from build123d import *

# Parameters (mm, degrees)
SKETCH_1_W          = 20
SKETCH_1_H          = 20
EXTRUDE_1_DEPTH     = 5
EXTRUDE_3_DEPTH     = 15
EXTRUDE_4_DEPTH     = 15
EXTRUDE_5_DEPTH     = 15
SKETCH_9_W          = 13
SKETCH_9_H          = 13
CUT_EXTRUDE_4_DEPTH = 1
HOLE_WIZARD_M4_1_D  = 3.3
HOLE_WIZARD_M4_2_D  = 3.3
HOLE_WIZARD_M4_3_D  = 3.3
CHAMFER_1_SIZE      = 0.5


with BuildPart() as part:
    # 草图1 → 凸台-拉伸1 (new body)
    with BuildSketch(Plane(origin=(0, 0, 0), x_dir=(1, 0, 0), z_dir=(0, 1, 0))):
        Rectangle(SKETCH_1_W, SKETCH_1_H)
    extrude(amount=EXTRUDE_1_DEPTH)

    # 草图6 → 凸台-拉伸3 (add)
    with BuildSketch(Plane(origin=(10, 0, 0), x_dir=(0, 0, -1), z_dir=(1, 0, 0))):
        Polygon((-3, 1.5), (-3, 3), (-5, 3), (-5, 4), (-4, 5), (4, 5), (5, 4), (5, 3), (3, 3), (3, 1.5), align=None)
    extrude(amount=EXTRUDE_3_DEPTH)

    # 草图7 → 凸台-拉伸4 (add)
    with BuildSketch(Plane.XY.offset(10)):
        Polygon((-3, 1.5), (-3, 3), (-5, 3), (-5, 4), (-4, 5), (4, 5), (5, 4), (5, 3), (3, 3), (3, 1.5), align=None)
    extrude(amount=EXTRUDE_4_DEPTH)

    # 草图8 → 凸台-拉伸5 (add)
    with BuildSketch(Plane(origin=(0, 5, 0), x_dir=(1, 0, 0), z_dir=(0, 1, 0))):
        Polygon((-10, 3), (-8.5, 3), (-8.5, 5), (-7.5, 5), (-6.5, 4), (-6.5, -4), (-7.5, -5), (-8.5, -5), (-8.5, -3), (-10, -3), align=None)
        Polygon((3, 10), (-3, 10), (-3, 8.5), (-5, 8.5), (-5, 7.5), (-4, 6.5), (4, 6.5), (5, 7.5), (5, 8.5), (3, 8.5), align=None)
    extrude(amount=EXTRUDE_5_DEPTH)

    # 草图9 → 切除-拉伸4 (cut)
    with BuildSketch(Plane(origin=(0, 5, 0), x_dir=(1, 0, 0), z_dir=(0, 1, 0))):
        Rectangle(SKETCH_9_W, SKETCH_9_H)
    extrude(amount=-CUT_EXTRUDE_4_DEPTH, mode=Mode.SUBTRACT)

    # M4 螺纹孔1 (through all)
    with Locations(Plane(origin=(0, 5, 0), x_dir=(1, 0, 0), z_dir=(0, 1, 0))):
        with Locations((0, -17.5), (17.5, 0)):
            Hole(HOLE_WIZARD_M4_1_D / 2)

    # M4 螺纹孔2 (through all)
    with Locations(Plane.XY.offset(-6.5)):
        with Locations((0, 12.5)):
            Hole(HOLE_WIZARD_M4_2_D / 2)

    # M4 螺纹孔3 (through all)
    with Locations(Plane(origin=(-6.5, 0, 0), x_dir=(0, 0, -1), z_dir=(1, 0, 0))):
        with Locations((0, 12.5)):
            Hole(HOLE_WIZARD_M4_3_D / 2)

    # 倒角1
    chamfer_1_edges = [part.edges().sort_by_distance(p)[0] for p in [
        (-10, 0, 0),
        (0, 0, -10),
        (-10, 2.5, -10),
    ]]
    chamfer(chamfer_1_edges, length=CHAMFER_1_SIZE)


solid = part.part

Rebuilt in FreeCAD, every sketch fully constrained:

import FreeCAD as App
import Part
import Sketcher


def edges_at(feature, points):
    """Names of the edges that pass closest to the given points."""
    edges = feature.Shape.Edges
    near = lambda p: min(range(len(edges)), key=lambda i: edges[i].distToShape(Part.Vertex(*p))[0])
    return sorted({f"Edge{near(p) + 1}" for p in points})

doc = App.newDocument("Part")
body = doc.addObject("PartDesign::Body", "Body")

sketch1 = doc.addObject("Sketcher::SketchObject", "Sketch")
body.addObject(sketch1)
sketch1.AttachmentSupport = (doc.XZ_Plane, [""])
sketch1.MapMode = "FlatFace"
sketch1.addGeometry([
    Part.LineSegment(App.Vector(-10, -10, 0), App.Vector(-10, 10, 0)),
    Part.LineSegment(App.Vector(-10, 10, 0), App.Vector(10, 10, 0)),
    Part.LineSegment(App.Vector(10, 10, 0), App.Vector(10, -10, 0)),
    Part.LineSegment(App.Vector(10, -10, 0), App.Vector(-10, -10, 0)),
], False)
sketch1.addConstraint([
    Sketcher.Constraint("Coincident", 0, 2, 1, 1),
    Sketcher.Constraint("Coincident", 1, 2, 2, 1),
    Sketcher.Constraint("Coincident", 2, 2, 3, 1),
    Sketcher.Constraint("Coincident", 3, 2, 0, 1),
    Sketcher.Constraint("Vertical", 0),
    Sketcher.Constraint("Horizontal", 1),
    Sketcher.Constraint("Vertical", 2),
    Sketcher.Constraint("Horizontal", 3),
    Sketcher.Constraint("Symmetric", 0, 2, 2, 2, -1, 1),
    Sketcher.Constraint("Equal", 3, 0),
    Sketcher.Constraint("DistanceX", 1, 1, 1, 2, 20.0),
])
pad1 = doc.addObject("PartDesign::Pad", "Pad")
body.addObject(pad1)
pad1.Profile = sketch1
pad1.Length = 5
pad1.Reversed = True

sketch2 = doc.addObject("Sketcher::SketchObject", "Sketch001")
body.addObject(sketch2)
sketch2.AttachmentSupport = (doc.YZ_Plane, [""])
sketch2.MapMode = "FlatFace"
sketch2.AttachmentOffset = App.Placement(App.Vector(0, 0, 10), App.Rotation())
sketch2.addGeometry([
    Part.LineSegment(App.Vector(3, 3, 0), App.Vector(1.5, 3, 0)),
    Part.LineSegment(App.Vector(1.5, 3, 0), App.Vector(1.5, -3, 0)),
    Part.LineSegment(App.Vector(1.5, -3, 0), App.Vector(3, -3, 0)),
    Part.LineSegment(App.Vector(3, -3, 0), App.Vector(3, -5, 0)),
    Part.LineSegment(App.Vector(3, -5, 0), App.Vector(4, -5, 0)),
    Part.LineSegment(App.Vector(4, -5, 0), App.Vector(5, -4, 0)),
    Part.LineSegment(App.Vector(5, -4, 0), App.Vector(5, 4, 0)),
    Part.LineSegment(App.Vector(5, 4, 0), App.Vector(4, 5, 0)),
    Part.LineSegment(App.Vector(4, 5, 0), App.Vector(3, 5, 0)),
    Part.LineSegment(App.Vector(3, 5, 0), App.Vector(3, 3, 0)),
], False)
sketch2.addConstraint([
    Sketcher.Constraint("Coincident", 0, 2, 1, 1),
    Sketcher.Constraint("Coincident", 1, 2, 2, 1),
    Sketcher.Constraint("Coincident", 2, 2, 3, 1),
    Sketcher.Constraint("Coincident", 3, 2, 4, 1),
    Sketcher.Constraint("Coincident", 4, 2, 5, 1),
    Sketcher.Constraint("Coincident", 5, 2, 6, 1),
    Sketcher.Constraint("Coincident", 6, 2, 7, 1),
    Sketcher.Constraint("Coincident", 7, 2, 8, 1),
    Sketcher.Constraint("Coincident", 8, 2, 9, 1),
    Sketcher.Constraint("Coincident", 9, 2, 0, 1),
    Sketcher.Constraint("Horizontal", 0),
    Sketcher.Constraint("Vertical", 1),
    Sketcher.Constraint("Horizontal", 2),
    Sketcher.Constraint("Vertical", 3),
    Sketcher.Constraint("Horizontal", 4),
    Sketcher.Constraint("Vertical", 6),
    Sketcher.Constraint("Horizontal", 8),
    Sketcher.Constraint("Vertical", 9),
    Sketcher.Constraint("Symmetric", 4, 2, 7, 2, -1),
    Sketcher.Constraint("Symmetric", 2, 2, 9, 2, -1),
    Sketcher.Constraint("Perpendicular", 5, 7),
    Sketcher.Constraint("Equal", 5, 7),
    Sketcher.Constraint("DistanceX", 4, 1, 4, 2, 1.0),
    Sketcher.Constraint("DistanceY", 1, 2, 1, 1, 6.0),
    Sketcher.Constraint("DistanceY", 3, 2, 3, 1, 2.0),
    Sketcher.Constraint("DistanceY", 6, 1, 6, 2, 8.0),
    Sketcher.Constraint("DistanceX", 0, 2, 0, 1, 1.5),
    Sketcher.Constraint("DistanceX", -1, 1, 2, 2, 3.0),
])
pad2 = doc.addObject("PartDesign::Pad", "Pad001")
body.addObject(pad2)
pad2.Profile = sketch2
pad2.Length = 15

sketch3 = doc.addObject("Sketcher::SketchObject", "Sketch002")
body.addObject(sketch3)
sketch3.AttachmentSupport = (doc.XY_Plane, [""])
sketch3.MapMode = "FlatFace"
sketch3.AttachmentOffset = App.Placement(App.Vector(0, 0, 10), App.Rotation())
sketch3.addGeometry([
    Part.LineSegment(App.Vector(-3, 3, 0), App.Vector(-3, 1.5, 0)),
    Part.LineSegment(App.Vector(-3, 1.5, 0), App.Vector(3, 1.5, 0)),
    Part.LineSegment(App.Vector(3, 1.5, 0), App.Vector(3, 3, 0)),
    Part.LineSegment(App.Vector(3, 3, 0), App.Vector(5, 3, 0)),
    Part.LineSegment(App.Vector(5, 3, 0), App.Vector(5, 4, 0)),
    Part.LineSegment(App.Vector(5, 4, 0), App.Vector(4, 5, 0)),
    Part.LineSegment(App.Vector(4, 5, 0), App.Vector(-4, 5, 0)),
    Part.LineSegment(App.Vector(-4, 5, 0), App.Vector(-5, 4, 0)),
    Part.LineSegment(App.Vector(-5, 4, 0), App.Vector(-5, 3, 0)),
    Part.LineSegment(App.Vector(-5, 3, 0), App.Vector(-3, 3, 0)),
], False)
sketch3.addConstraint([
    Sketcher.Constraint("Coincident", 0, 2, 1, 1),
    Sketcher.Constraint("Coincident", 1, 2, 2, 1),
    Sketcher.Constraint("Coincident", 2, 2, 3, 1),
    Sketcher.Constraint("Coincident", 3, 2, 4, 1),
    Sketcher.Constraint("Coincident", 4, 2, 5, 1),
    Sketcher.Constraint("Coincident", 5, 2, 6, 1),
    Sketcher.Constraint("Coincident", 6, 2, 7, 1),
    Sketcher.Constraint("Coincident", 7, 2, 8, 1),
    Sketcher.Constraint("Coincident", 8, 2, 9, 1),
    Sketcher.Constraint("Coincident", 9, 2, 0, 1),
    Sketcher.Constraint("Vertical", 0),
    Sketcher.Constraint("Horizontal", 1),
    Sketcher.Constraint("Vertical", 2),
    Sketcher.Constraint("Horizontal", 3),
    Sketcher.Constraint("Vertical", 4),
    Sketcher.Constraint("Horizontal", 6),
    Sketcher.Constraint("Vertical", 8),
    Sketcher.Constraint("Horizontal", 9),
    Sketcher.Constraint("Symmetric", 4, 2, 7, 2, -2),
    Sketcher.Constraint("Symmetric", 2, 2, 9, 2, -2),
    Sketcher.Constraint("Perpendicular", 5, 7),
    Sketcher.Constraint("Equal", 5, 7),
    Sketcher.Constraint("DistanceX", 1, 1, 1, 2, 6.0),
    Sketcher.Constraint("DistanceX", 3, 1, 3, 2, 2.0),
    Sketcher.Constraint("DistanceX", 6, 2, 6, 1, 8.0),
    Sketcher.Constraint("DistanceY", 4, 1, 4, 2, 1.0),
    Sketcher.Constraint("DistanceY", 0, 2, 0, 1, 1.5),
    Sketcher.Constraint("DistanceY", -1, 1, 2, 2, 3.0),
])
pad3 = doc.addObject("PartDesign::Pad", "Pad002")
body.addObject(pad3)
pad3.Profile = sketch3
pad3.Length = 15

sketch4 = doc.addObject("Sketcher::SketchObject", "Sketch003")
body.addObject(sketch4)
sketch4.AttachmentSupport = (doc.XZ_Plane, [""])
sketch4.MapMode = "FlatFace"
sketch4.AttachmentOffset = App.Placement(App.Vector(0, 0, -5), App.Rotation())
sketch4.addGeometry([
    Part.LineSegment(App.Vector(-8.5, -3, 0), App.Vector(-10, -3, 0)),
    Part.LineSegment(App.Vector(-10, -3, 0), App.Vector(-10, 3, 0)),
    Part.LineSegment(App.Vector(-10, 3, 0), App.Vector(-8.5, 3, 0)),
    Part.LineSegment(App.Vector(-8.5, 3, 0), App.Vector(-8.5, 5, 0)),
    Part.LineSegment(App.Vector(-8.5, 5, 0), App.Vector(-7.5, 5, 0)),
    Part.LineSegment(App.Vector(-7.5, 5, 0), App.Vector(-6.5, 4, 0)),
    Part.LineSegment(App.Vector(-6.5, 4, 0), App.Vector(-6.5, -4, 0)),
    Part.LineSegment(App.Vector(-6.5, -4, 0), App.Vector(-7.5, -5, 0)),
    Part.LineSegment(App.Vector(-7.5, -5, 0), App.Vector(-8.5, -5, 0)),
    Part.LineSegment(App.Vector(-8.5, -5, 0), App.Vector(-8.5, -3, 0)),
    Part.LineSegment(App.Vector(3, -10, 0), App.Vector(-3, -10, 0)),
    Part.LineSegment(App.Vector(-3, -10, 0), App.Vector(-3, -8.5, 0)),
    Part.LineSegment(App.Vector(-3, -8.5, 0), App.Vector(-5, -8.5, 0)),
    Part.LineSegment(App.Vector(-5, -8.5, 0), App.Vector(-5, -7.5, 0)),
    Part.LineSegment(App.Vector(-5, -7.5, 0), App.Vector(-4, -6.5, 0)),
    Part.LineSegment(App.Vector(-4, -6.5, 0), App.Vector(4, -6.5, 0)),
    Part.LineSegment(App.Vector(4, -6.5, 0), App.Vector(5, -7.5, 0)),
    Part.LineSegment(App.Vector(5, -7.5, 0), App.Vector(5, -8.5, 0)),
    Part.LineSegment(App.Vector(5, -8.5, 0), App.Vector(3, -8.5, 0)),
    Part.LineSegment(App.Vector(3, -8.5, 0), App.Vector(3, -10, 0)),
], False)
sketch4.addConstraint([
    Sketcher.Constraint("Coincident", 0, 2, 1, 1),
    Sketcher.Constraint("Coincident", 1, 2, 2, 1),
    Sketcher.Constraint("Coincident", 2, 2, 3, 1),
    Sketcher.Constraint("Coincident", 3, 2, 4, 1),
    Sketcher.Constraint("Coincident", 4, 2, 5, 1),
    Sketcher.Constraint("Coincident", 5, 2, 6, 1),
    Sketcher.Constraint("Coincident", 6, 2, 7, 1),
    Sketcher.Constraint("Coincident", 7, 2, 8, 1),
    Sketcher.Constraint("Coincident", 8, 2, 9, 1),
    Sketcher.Constraint("Coincident", 9, 2, 0, 1),
    Sketcher.Constraint("Coincident", 10, 2, 11, 1),
    Sketcher.Constraint("Coincident", 11, 2, 12, 1),
    Sketcher.Constraint("Coincident", 12, 2, 13, 1),
    Sketcher.Constraint("Coincident", 13, 2, 14, 1),
    Sketcher.Constraint("Coincident", 14, 2, 15, 1),
    Sketcher.Constraint("Coincident", 15, 2, 16, 1),
    Sketcher.Constraint("Coincident", 16, 2, 17, 1),
    Sketcher.Constraint("Coincident", 17, 2, 18, 1),
    Sketcher.Constraint("Coincident", 18, 2, 19, 1),
    Sketcher.Constraint("Coincident", 19, 2, 10, 1),
    Sketcher.Constraint("Horizontal", 0),
    Sketcher.Constraint("Vertical", 1),
    Sketcher.Constraint("Horizontal", 2),
    Sketcher.Constraint("Vertical", 3),
    Sketcher.Constraint("Horizontal", 4),
    Sketcher.Constraint("Vertical", 6),
    Sketcher.Constraint("Horizontal", 8),
    Sketcher.Constraint("Vertical", 9),
    Sketcher.Constraint("Horizontal", 10),
    Sketcher.Constraint("Vertical", 11),
    Sketcher.Constraint("Horizontal", 12),
    Sketcher.Constraint("Vertical", 13),
    Sketcher.Constraint("Horizontal", 15),
    Sketcher.Constraint("Vertical", 17),
    Sketcher.Constraint("Horizontal", 18),
    Sketcher.Constraint("Vertical", 19),
    Sketcher.Constraint("Symmetric", 13, 2, 16, 2, -2),
    Sketcher.Constraint("Symmetric", 11, 2, 18, 2, -2),
    Sketcher.Constraint("Symmetric", 4, 2, 7, 2, -1),
    Sketcher.Constraint("Symmetric", 2, 2, 9, 2, -1),
    Sketcher.Constraint("Perpendicular", 5, 7),
    Sketcher.Constraint("Parallel", 7, 14),
    Sketcher.Constraint("Perpendicular", 14, 16),
    Sketcher.Constraint("Equal", 10, 1),
    Sketcher.Constraint("Equal", 18, 3),
    Sketcher.Constraint("Equal", 15, 6),
    Sketcher.Constraint("Equal", 2, 11),
    Sketcher.Constraint("Equal", 8, 13),
    Sketcher.Constraint("Equal", 5, 7),
    Sketcher.Constraint("DistanceX", 4, 1, 4, 2, 1.0),
    Sketcher.Constraint("DistanceX", 10, 2, 10, 1, 6.0),
    Sketcher.Constraint("DistanceX", 12, 2, 12, 1, 2.0),
    Sketcher.Constraint("DistanceX", 15, 1, 15, 2, 8.0),
    Sketcher.Constraint("DistanceX", 0, 2, 0, 1, 1.5),
    Sketcher.Constraint("DistanceX", 0, 2, -1, 1, 10.0),
    Sketcher.Constraint("DistanceY", 10, 2, -1, 1, 10.0),
])
pad4 = doc.addObject("PartDesign::Pad", "Pad003")
body.addObject(pad4)
pad4.Profile = sketch4
pad4.Length = 15
pad4.Reversed = True

sketch5 = doc.addObject("Sketcher::SketchObject", "Sketch004")
body.addObject(sketch5)
sketch5.AttachmentSupport = (doc.XZ_Plane, [""])
sketch5.MapMode = "FlatFace"
sketch5.AttachmentOffset = App.Placement(App.Vector(0, 0, -5), App.Rotation())
sketch5.addGeometry([
    Part.LineSegment(App.Vector(-6.5, -6.5, 0), App.Vector(-6.5, 6.5, 0)),
    Part.LineSegment(App.Vector(-6.5, 6.5, 0), App.Vector(6.5, 6.5, 0)),
    Part.LineSegment(App.Vector(6.5, 6.5, 0), App.Vector(6.5, -6.5, 0)),
    Part.LineSegment(App.Vector(6.5, -6.5, 0), App.Vector(-6.5, -6.5, 0)),
], False)
sketch5.addConstraint([
    Sketcher.Constraint("Coincident", 0, 2, 1, 1),
    Sketcher.Constraint("Coincident", 1, 2, 2, 1),
    Sketcher.Constraint("Coincident", 2, 2, 3, 1),
    Sketcher.Constraint("Coincident", 3, 2, 0, 1),
    Sketcher.Constraint("Vertical", 0),
    Sketcher.Constraint("Horizontal", 1),
    Sketcher.Constraint("Vertical", 2),
    Sketcher.Constraint("Horizontal", 3),
    Sketcher.Constraint("Symmetric", 0, 2, 2, 2, -1, 1),
    Sketcher.Constraint("Equal", 3, 0),
    Sketcher.Constraint("DistanceX", 1, 1, 1, 2, 13.0),
])
pocket1 = doc.addObject("PartDesign::Pocket", "Pocket")
body.addObject(pocket1)
pocket1.Profile = sketch5
pocket1.Length = 1
pocket1.Reversed = True

sketch6 = doc.addObject("Sketcher::SketchObject", "Sketch005")
body.addObject(sketch6)
sketch6.AttachmentSupport = (doc.XZ_Plane, [""])
sketch6.MapMode = "FlatFace"
sketch6.AttachmentOffset = App.Placement(App.Vector(0, 0, -5), App.Rotation())
sketch6.addGeometry([
    Part.Circle(App.Vector(0, 17.5, 0), App.Vector(0, 0, 1), 1.65),
    Part.Circle(App.Vector(17.5, 0, 0), App.Vector(0, 0, 1), 1.65),
], False)
sketch6.addConstraint([
    Sketcher.Constraint("Equal", 0, 1),
    Sketcher.Constraint("PointOnObject", 0, 3, -2),
    Sketcher.Constraint("PointOnObject", 1, 3, -1),
    Sketcher.Constraint("Diameter", 0, 3.3),
    Sketcher.Constraint("DistanceY", -1, 1, 0, 3, 17.5),
    Sketcher.Constraint("DistanceX", -1, 1, 1, 3, 17.5),
])
doc.recompute()
hole = doc.addObject("PartDesign::Hole", "Hole")
body.addObject(hole)
hole.Profile = sketch6
hole.ThreadType = "None"
hole.Diameter = 3.3
hole.DepthType = "ThroughAll"
hole.Reversed = True

sketch7 = doc.addObject("Sketcher::SketchObject", "Sketch006")
body.addObject(sketch7)
sketch7.AttachmentSupport = (doc.XY_Plane, [""])
sketch7.MapMode = "FlatFace"
sketch7.AttachmentOffset = App.Placement(App.Vector(0, 0, -6.5), App.Rotation())
sketch7.addGeometry(Part.Circle(App.Vector(0, 12.5, 0), App.Vector(0, 0, 1), 1.65), False)
sketch7.addConstraint([
    Sketcher.Constraint("PointOnObject", 0, 3, -2),
    Sketcher.Constraint("Diameter", 0, 3.3),
    Sketcher.Constraint("DistanceY", -1, 1, 0, 3, 12.5),
])
doc.recompute()
hole2 = doc.addObject("PartDesign::Hole", "Hole001")
body.addObject(hole2)
hole2.Profile = sketch7
hole2.ThreadType = "None"
hole2.Diameter = 3.3
hole2.DepthType = "ThroughAll"

sketch8 = doc.addObject("Sketcher::SketchObject", "Sketch007")
body.addObject(sketch8)
sketch8.AttachmentSupport = (doc.YZ_Plane, [""])
sketch8.MapMode = "FlatFace"
sketch8.AttachmentOffset = App.Placement(App.Vector(0, 0, -6.5), App.Rotation())
sketch8.addGeometry(Part.Circle(App.Vector(12.5, 0, 0), App.Vector(0, 0, 1), 1.65), False)
sketch8.addConstraint([
    Sketcher.Constraint("PointOnObject", 0, 3, -1),
    Sketcher.Constraint("Diameter", 0, 3.3),
    Sketcher.Constraint("DistanceX", -1, 1, 0, 3, 12.5),
])
doc.recompute()
hole3 = doc.addObject("PartDesign::Hole", "Hole002")
body.addObject(hole3)
hole3.Profile = sketch8
hole3.ThreadType = "None"
hole3.Diameter = 3.3
hole3.DepthType = "ThroughAll"
doc.recompute()

chamfer = doc.addObject("PartDesign::Chamfer", "Chamfer")
body.addObject(chamfer)
chamfer.Base = (hole3, edges_at(hole3, [(-10, 0, 0), (0, 0, -10), (-10, 2.5, -10)]))
chamfer.Size = 0.5

doc.recompute()
